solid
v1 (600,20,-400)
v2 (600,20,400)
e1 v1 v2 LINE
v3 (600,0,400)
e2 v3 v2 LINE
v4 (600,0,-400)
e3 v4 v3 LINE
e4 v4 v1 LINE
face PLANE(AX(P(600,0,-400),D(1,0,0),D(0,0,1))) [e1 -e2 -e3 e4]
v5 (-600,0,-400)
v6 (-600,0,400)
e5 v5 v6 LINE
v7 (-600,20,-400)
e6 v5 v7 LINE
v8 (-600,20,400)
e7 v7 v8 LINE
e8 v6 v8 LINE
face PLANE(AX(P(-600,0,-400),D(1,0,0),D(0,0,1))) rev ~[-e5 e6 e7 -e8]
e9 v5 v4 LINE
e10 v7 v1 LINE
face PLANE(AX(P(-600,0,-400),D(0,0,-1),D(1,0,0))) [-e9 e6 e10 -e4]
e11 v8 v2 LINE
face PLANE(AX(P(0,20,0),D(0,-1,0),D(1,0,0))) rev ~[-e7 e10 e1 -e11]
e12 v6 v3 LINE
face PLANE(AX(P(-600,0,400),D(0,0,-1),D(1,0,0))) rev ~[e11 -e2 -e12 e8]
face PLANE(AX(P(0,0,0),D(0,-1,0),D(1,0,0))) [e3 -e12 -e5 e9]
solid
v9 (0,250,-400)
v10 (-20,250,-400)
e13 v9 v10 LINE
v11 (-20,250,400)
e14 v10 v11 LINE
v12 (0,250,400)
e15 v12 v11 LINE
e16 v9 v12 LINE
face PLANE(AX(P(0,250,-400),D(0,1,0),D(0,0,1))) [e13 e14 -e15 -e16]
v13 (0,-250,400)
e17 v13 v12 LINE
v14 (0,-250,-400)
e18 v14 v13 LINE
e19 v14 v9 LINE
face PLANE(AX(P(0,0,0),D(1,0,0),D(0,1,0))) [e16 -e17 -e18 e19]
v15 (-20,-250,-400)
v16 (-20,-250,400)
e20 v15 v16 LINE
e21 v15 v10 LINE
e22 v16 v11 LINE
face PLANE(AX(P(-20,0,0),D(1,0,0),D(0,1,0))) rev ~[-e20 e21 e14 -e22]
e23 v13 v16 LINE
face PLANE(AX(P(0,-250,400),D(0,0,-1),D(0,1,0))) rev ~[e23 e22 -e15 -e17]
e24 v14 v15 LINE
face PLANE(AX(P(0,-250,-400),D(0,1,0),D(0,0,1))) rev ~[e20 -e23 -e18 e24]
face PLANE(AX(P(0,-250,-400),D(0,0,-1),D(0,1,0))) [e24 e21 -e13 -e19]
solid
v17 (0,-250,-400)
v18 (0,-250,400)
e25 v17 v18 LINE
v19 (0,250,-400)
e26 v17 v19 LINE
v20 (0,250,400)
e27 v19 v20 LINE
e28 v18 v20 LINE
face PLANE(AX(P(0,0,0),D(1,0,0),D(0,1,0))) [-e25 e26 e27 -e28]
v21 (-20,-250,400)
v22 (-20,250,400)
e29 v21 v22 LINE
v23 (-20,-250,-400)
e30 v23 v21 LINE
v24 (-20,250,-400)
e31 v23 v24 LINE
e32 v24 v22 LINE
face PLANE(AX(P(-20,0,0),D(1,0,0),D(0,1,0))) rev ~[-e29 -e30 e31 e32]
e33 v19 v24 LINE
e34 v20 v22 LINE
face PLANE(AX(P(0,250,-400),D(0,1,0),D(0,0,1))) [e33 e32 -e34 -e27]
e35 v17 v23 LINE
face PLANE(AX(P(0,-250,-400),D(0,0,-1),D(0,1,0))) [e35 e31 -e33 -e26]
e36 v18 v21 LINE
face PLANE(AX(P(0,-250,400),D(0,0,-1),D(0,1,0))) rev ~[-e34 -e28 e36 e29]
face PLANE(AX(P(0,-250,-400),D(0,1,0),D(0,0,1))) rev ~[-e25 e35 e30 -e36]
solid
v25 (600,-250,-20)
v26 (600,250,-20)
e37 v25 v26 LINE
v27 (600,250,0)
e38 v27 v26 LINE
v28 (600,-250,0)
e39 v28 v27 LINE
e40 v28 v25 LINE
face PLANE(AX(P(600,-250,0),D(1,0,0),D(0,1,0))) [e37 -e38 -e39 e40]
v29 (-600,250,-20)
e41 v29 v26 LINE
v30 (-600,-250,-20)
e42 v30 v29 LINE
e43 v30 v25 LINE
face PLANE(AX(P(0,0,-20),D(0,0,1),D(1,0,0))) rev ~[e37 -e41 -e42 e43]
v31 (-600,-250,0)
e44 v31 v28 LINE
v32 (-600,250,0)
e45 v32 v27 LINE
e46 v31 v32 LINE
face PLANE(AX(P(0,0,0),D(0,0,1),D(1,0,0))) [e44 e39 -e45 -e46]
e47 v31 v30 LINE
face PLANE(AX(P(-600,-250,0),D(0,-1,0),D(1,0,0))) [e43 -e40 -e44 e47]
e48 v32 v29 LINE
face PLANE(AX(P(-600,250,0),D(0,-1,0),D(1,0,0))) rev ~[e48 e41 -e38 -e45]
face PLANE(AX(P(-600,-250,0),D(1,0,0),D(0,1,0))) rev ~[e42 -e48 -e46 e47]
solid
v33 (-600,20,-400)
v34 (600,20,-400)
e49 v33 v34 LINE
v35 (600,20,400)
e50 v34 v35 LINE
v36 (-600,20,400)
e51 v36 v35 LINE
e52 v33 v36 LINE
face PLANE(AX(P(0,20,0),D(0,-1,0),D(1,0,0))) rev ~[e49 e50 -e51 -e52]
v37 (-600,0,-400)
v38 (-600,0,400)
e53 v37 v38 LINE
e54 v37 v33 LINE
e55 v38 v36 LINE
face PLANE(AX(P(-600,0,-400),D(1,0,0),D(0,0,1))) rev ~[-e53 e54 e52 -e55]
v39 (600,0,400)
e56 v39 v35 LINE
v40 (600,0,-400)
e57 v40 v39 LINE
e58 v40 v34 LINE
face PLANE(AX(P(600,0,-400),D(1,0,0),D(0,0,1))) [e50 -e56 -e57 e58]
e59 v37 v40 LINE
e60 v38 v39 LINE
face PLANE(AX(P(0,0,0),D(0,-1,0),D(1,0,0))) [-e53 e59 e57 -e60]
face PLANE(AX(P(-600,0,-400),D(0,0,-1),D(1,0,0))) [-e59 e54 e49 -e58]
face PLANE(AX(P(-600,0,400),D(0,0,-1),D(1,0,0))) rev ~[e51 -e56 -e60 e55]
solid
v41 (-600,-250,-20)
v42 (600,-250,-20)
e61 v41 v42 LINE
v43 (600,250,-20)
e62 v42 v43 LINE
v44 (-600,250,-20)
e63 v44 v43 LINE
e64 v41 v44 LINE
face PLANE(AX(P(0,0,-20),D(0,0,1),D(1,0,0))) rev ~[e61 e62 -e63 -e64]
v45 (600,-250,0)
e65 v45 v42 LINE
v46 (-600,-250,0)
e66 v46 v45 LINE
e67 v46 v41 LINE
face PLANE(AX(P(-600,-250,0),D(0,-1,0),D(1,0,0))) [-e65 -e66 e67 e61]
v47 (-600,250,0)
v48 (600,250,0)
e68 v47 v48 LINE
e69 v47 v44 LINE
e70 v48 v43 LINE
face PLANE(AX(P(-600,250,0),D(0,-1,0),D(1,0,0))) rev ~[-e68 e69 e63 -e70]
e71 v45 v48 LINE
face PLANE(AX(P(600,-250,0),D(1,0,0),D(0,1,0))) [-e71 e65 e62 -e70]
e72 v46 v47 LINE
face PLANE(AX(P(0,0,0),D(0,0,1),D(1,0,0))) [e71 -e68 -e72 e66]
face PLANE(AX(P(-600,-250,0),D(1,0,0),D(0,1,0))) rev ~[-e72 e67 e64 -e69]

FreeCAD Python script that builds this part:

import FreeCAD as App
import Part
import Sketcher
Q = App.Units.Quantity


def add_polygon(sketch, points):
    """Adds a closed chain of lines whose ends are joined by coincident constraints."""
    first, n = sketch.GeometryCount, len(points)
    for a, b in zip(points, points[1:] + points[:1]):
        sketch.addGeometry(Part.LineSegment(App.Vector(*a, 0), App.Vector(*b, 0)), False)
    for i in range(n):
        sketch.addConstraint(Sketcher.Constraint("Coincident", first + i, 2, first + (i + 1) % n, 1))

doc = App.newDocument("Part")
body = doc.addObject("PartDesign::Body", "Body")

# Sketch on XY plane
sketch1 = body.newObject("Sketcher::SketchObject", "Sketch")
sketch1.AttachmentSupport = (doc.getObject("XY_Plane"), [""])
sketch1.MapMode = "FlatFace"
add_polygon(sketch1, [(-600, 250), (-600, -250), (600, -250), (600, 250)])  # lines 0-3
sketch1.addConstraint([
    Sketcher.Constraint("Vertical", 0),
    Sketcher.Constraint("Horizontal", 1),
    Sketcher.Constraint("Vertical", 2),
    Sketcher.Constraint("Horizontal", 3),
    Sketcher.Constraint("Symmetric", 0, 2, 2, 2, -1, 1),
    Sketcher.Constraint("DistanceX", 1, 1, 1, 2, Q("1200 mm")),
    Sketcher.Constraint("DistanceY", 0, 2, 0, 1, Q("500 mm")),
])
pad1 = body.newObject("PartDesign::Pad", "Pad")
pad1.Profile = sketch1
pad1.Length = 20
pad1.Reversed = True
body2 = doc.addObject("PartDesign::Body", "Body001")

# Sketch on XY plane
sketch2 = body2.newObject("Sketcher::SketchObject", "Sketch001")
sketch2.AttachmentSupport = (doc.getObject("XY_Plane001"), [""])
sketch2.MapMode = "FlatFace"
add_polygon(sketch2, [(-600, 250), (-600, -250), (600, -250), (600, 250)])  # lines 0-3
sketch2.addConstraint([
    Sketcher.Constraint("Vertical", 0),
    Sketcher.Constraint("Horizontal", 1),
    Sketcher.Constraint("Vertical", 2),
    Sketcher.Constraint("Horizontal", 3),
    Sketcher.Constraint("Symmetric", 0, 2, 2, 2, -1, 1),
    Sketcher.Constraint("DistanceX", 1, 1, 1, 2, Q("1200 mm")),
    Sketcher.Constraint("DistanceY", 0, 2, 0, 1, Q("500 mm")),
])
pad2 = body2.newObject("PartDesign::Pad", "Pad001")
pad2.Profile = sketch2
pad2.Length = 20
pad2.Reversed = True
body3 = doc.addObject("PartDesign::Body", "Body002")

# Sketch on XZ plane
sketch3 = body3.newObject("Sketcher::SketchObject", "Sketch002")
sketch3.AttachmentSupport = (doc.getObject("XZ_Plane002"), [""])
sketch3.MapMode = "FlatFace"
add_polygon(sketch3, [(-600, 400), (-600, -400), (600, -400), (600, 400)])  # lines 0-3
sketch3.addConstraint([
    Sketcher.Constraint("Vertical", 0),
    Sketcher.Constraint("Horizontal", 1),
    Sketcher.Constraint("Vertical", 2),
    Sketcher.Constraint("Horizontal", 3),
    Sketcher.Constraint("Symmetric", 0, 2, 2, 2, -1, 1),
    Sketcher.Constraint("DistanceX", 1, 1, 1, 2, Q("1200 mm")),
    Sketcher.Constraint("DistanceY", 0, 2, 0, 1, Q("800 mm")),
])
pad3 = body3.newObject("PartDesign::Pad", "Pad002")
pad3.Profile = sketch3
pad3.Length = 20
pad3.Reversed = True
body4 = doc.addObject("PartDesign::Body", "Body003")

# Sketch on XZ plane
sketch4 = body4.newObject("Sketcher::SketchObject", "Sketch003")
sketch4.AttachmentSupport = (doc.getObject("XZ_Plane003"), [""])
sketch4.MapMode = "FlatFace"
add_polygon(sketch4, [(-600, 400), (-600, -400), (600, -400), (600, 400)])  # lines 0-3
sketch4.addConstraint([
    Sketcher.Constraint("Vertical", 0),
    Sketcher.Constraint("Horizontal", 1),
    Sketcher.Constraint("Vertical", 2),
    Sketcher.Constraint("Horizontal", 3),
    Sketcher.Constraint("Symmetric", 0, 2, 2, 2, -1, 1),
    Sketcher.Constraint("DistanceX", 1, 1, 1, 2, Q("1200 mm")),
    Sketcher.Constraint("DistanceY", 0, 2, 0, 1, Q("800 mm")),
])
pad4 = body4.newObject("PartDesign::Pad", "Pad003")
pad4.Profile = sketch4
pad4.Length = 20
pad4.Reversed = True
body5 = doc.addObject("PartDesign::Body", "Body004")

# Sketch on YZ plane
sketch5 = body5.newObject("Sketcher::SketchObject", "Sketch004")
sketch5.AttachmentSupport = (doc.getObject("YZ_Plane004"), [""])
sketch5.MapMode = "FlatFace"
add_polygon(sketch5, [(-250, 400), (-250, -400), (250, -400), (250, 400)])  # lines 0-3
sketch5.addConstraint([
    Sketcher.Constraint("Vertical", 0),
    Sketcher.Constraint("Horizontal", 1),
    Sketcher.Constraint("Vertical", 2),
    Sketcher.Constraint("Horizontal", 3),
    Sketcher.Constraint("Symmetric", 0, 2, 2, 2, -1, 1),
    Sketcher.Constraint("DistanceX", 1, 1, 1, 2, Q("500 mm")),
    Sketcher.Constraint("DistanceY", 0, 2, 0, 1, Q("800 mm")),
])
pad5 = body5.newObject("PartDesign::Pad", "Pad004")
pad5.Profile = sketch5
pad5.Length = 20
pad5.Reversed = True
body6 = doc.addObject("PartDesign::Body", "Body005")

# Sketch on YZ plane
sketch6 = body6.newObject("Sketcher::SketchObject", "Sketch005")
sketch6.AttachmentSupport = (doc.getObject("YZ_Plane005"), [""])
sketch6.MapMode = "FlatFace"
add_polygon(sketch6, [(-250, 400), (-250, -400), (250, -400), (250, 400)])  # lines 0-3
sketch6.addConstraint([
    Sketcher.Constraint("Vertical", 0),
    Sketcher.Constraint("Horizontal", 1),
    Sketcher.Constraint("Vertical", 2),
    Sketcher.Constraint("Horizontal", 3),
    Sketcher.Constraint("Symmetric", 0, 2, 2, 2, -1, 1),
    Sketcher.Constraint("DistanceX", 1, 1, 1, 2, Q("500 mm")),
    Sketcher.Constraint("DistanceY", 0, 2, 0, 1, Q("800 mm")),
])
pad6 = body6.newObject("PartDesign::Pad", "Pad005")
pad6.Profile = sketch6
pad6.Length = 20
pad6.Reversed = True

doc.recompute()
